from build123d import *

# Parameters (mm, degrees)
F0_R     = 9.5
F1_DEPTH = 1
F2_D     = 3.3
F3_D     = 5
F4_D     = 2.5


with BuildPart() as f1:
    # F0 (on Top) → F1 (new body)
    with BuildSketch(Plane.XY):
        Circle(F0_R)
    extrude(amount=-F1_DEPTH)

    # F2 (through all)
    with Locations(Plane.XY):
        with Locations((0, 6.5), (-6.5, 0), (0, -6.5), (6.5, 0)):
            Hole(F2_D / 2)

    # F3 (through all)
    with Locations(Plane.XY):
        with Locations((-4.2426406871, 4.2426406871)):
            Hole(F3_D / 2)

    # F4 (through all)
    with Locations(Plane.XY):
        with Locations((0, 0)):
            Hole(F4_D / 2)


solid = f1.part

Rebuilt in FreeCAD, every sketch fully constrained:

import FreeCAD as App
import Part
import Sketcher
Q = App.Units.Quantity

doc = App.newDocument("Part")
body = doc.addObject("PartDesign::Body", "Body")

# Sketch on XY plane
sketch1 = body.newObject("Sketcher::SketchObject", "Sketch")
sketch1.AttachmentSupport = (doc.getObject("XY_Plane"), [""])
sketch1.MapMode = "FlatFace"
sketch1.addGeometry(Part.Circle(App.Vector(0, 0, 0), App.Vector(0, 0, 1), 10), False)
sketch1.addConstraint([
    Sketcher.Constraint("Coincident", 0, 3, -1, 1),
    Sketcher.Constraint("Diameter", 0, Q("19 mm")),
])
pad1 = body.newObject("PartDesign::Pad", "Pad")
pad1.Profile = sketch1
pad1.Length = 1
pad1.Reversed = True

# Sketch on XY plane
sketch2 = body.newObject("Sketcher::SketchObject", "Sketch001")
sketch2.AttachmentSupport = (doc.getObject("XY_Plane"), [""])
sketch2.MapMode = "FlatFace"
sketch2.addGeometry([
    Part.Circle(App.Vector(0, 6.5, 0), App.Vector(0, 0, 1), 1.6),
    Part.Circle(App.Vector(-6.5, 0, 0), App.Vector(0, 0, 1), 1.6),
    Part.Circle(App.Vector(0, -6.5, 0), App.Vector(0, 0, 1), 1.6),
    Part.Circle(App.Vector(6.5, 0, 0), App.Vector(0, 0, 1), 1.6),
], False)
sketch2.addConstraint([
    Sketcher.Constraint("Equal", 0, 1),
    Sketcher.Constraint("Equal", 1, 2),
    Sketcher.Constraint("Equal", 2, 3),
    Sketcher.Constraint("Symmetric", 0, 3, 2, 3, -1, 1),
    Sketcher.Constraint("Symmetric", 1, 3, 3, 3, -1, 1),
    Sketcher.Constraint("PointOnObject", 0, 3, -2),
    Sketcher.Constraint("PointOnObject", 1, 3, -1),
    Sketcher.Constraint("Diameter", 0, Q("3.3 mm")),
    Sketcher.Constraint("DistanceY", 2, 3, 0, 3, Q("13 mm")),
    Sketcher.Constraint("DistanceX", 1, 3, 3, 3, Q("13 mm")),
])
doc.recompute()
hole = body.newObject("PartDesign::Hole", "Hole")
hole.Profile = sketch2
hole.ThreadType = "None"
hole.Diameter = 3.3
hole.DepthType = "ThroughAll"

# Sketch on XY plane
sketch3 = body.newObject("Sketcher::SketchObject", "Sketch002")
sketch3.AttachmentSupport = (doc.getObject("XY_Plane"), [""])
sketch3.MapMode = "FlatFace"
sketch3.addGeometry(Part.Circle(App.Vector(-4.2, 4.2, 0), App.Vector(0, 0, 1), 2.5), False)
sketch3.addConstraint([
    Sketcher.Constraint("Diameter", 0, Q("5 mm")),
    Sketcher.Constraint("DistanceX", 0, 3, -1, 1, Q("4.242641 mm")),
    Sketcher.Constraint("DistanceY", -1, 1, 0, 3, Q("4.242641 mm")),
])
doc.recompute()
hole2 = body.newObject("PartDesign::Hole", "Hole001")
hole2.Profile = sketch3
hole2.ThreadType = "None"
hole2.Diameter = 5
hole2.DepthType = "ThroughAll"

# Sketch on XY plane
sketch4 = body.newObject("Sketcher::SketchObject", "Sketch003")
sketch4.AttachmentSupport = (doc.getObject("XY_Plane"), [""])
sketch4.MapMode = "FlatFace"
sketch4.addGeometry(Part.Circle(App.Vector(0, 0, 0), App.Vector(0, 0, 1), 1.2), False)
sketch4.addConstraint([
    Sketcher.Constraint("Coincident", 0, 3, -1, 1),
    Sketcher.Constraint("Diameter", 0, Q("2.5 mm")),
])
doc.recompute()
hole3 = body.newObject("PartDesign::Hole", "Hole002")
hole3.Profile = sketch4
hole3.ThreadType = "None"
hole3.Diameter = 2.5
hole3.DepthType = "ThroughAll"

doc.recompute()
